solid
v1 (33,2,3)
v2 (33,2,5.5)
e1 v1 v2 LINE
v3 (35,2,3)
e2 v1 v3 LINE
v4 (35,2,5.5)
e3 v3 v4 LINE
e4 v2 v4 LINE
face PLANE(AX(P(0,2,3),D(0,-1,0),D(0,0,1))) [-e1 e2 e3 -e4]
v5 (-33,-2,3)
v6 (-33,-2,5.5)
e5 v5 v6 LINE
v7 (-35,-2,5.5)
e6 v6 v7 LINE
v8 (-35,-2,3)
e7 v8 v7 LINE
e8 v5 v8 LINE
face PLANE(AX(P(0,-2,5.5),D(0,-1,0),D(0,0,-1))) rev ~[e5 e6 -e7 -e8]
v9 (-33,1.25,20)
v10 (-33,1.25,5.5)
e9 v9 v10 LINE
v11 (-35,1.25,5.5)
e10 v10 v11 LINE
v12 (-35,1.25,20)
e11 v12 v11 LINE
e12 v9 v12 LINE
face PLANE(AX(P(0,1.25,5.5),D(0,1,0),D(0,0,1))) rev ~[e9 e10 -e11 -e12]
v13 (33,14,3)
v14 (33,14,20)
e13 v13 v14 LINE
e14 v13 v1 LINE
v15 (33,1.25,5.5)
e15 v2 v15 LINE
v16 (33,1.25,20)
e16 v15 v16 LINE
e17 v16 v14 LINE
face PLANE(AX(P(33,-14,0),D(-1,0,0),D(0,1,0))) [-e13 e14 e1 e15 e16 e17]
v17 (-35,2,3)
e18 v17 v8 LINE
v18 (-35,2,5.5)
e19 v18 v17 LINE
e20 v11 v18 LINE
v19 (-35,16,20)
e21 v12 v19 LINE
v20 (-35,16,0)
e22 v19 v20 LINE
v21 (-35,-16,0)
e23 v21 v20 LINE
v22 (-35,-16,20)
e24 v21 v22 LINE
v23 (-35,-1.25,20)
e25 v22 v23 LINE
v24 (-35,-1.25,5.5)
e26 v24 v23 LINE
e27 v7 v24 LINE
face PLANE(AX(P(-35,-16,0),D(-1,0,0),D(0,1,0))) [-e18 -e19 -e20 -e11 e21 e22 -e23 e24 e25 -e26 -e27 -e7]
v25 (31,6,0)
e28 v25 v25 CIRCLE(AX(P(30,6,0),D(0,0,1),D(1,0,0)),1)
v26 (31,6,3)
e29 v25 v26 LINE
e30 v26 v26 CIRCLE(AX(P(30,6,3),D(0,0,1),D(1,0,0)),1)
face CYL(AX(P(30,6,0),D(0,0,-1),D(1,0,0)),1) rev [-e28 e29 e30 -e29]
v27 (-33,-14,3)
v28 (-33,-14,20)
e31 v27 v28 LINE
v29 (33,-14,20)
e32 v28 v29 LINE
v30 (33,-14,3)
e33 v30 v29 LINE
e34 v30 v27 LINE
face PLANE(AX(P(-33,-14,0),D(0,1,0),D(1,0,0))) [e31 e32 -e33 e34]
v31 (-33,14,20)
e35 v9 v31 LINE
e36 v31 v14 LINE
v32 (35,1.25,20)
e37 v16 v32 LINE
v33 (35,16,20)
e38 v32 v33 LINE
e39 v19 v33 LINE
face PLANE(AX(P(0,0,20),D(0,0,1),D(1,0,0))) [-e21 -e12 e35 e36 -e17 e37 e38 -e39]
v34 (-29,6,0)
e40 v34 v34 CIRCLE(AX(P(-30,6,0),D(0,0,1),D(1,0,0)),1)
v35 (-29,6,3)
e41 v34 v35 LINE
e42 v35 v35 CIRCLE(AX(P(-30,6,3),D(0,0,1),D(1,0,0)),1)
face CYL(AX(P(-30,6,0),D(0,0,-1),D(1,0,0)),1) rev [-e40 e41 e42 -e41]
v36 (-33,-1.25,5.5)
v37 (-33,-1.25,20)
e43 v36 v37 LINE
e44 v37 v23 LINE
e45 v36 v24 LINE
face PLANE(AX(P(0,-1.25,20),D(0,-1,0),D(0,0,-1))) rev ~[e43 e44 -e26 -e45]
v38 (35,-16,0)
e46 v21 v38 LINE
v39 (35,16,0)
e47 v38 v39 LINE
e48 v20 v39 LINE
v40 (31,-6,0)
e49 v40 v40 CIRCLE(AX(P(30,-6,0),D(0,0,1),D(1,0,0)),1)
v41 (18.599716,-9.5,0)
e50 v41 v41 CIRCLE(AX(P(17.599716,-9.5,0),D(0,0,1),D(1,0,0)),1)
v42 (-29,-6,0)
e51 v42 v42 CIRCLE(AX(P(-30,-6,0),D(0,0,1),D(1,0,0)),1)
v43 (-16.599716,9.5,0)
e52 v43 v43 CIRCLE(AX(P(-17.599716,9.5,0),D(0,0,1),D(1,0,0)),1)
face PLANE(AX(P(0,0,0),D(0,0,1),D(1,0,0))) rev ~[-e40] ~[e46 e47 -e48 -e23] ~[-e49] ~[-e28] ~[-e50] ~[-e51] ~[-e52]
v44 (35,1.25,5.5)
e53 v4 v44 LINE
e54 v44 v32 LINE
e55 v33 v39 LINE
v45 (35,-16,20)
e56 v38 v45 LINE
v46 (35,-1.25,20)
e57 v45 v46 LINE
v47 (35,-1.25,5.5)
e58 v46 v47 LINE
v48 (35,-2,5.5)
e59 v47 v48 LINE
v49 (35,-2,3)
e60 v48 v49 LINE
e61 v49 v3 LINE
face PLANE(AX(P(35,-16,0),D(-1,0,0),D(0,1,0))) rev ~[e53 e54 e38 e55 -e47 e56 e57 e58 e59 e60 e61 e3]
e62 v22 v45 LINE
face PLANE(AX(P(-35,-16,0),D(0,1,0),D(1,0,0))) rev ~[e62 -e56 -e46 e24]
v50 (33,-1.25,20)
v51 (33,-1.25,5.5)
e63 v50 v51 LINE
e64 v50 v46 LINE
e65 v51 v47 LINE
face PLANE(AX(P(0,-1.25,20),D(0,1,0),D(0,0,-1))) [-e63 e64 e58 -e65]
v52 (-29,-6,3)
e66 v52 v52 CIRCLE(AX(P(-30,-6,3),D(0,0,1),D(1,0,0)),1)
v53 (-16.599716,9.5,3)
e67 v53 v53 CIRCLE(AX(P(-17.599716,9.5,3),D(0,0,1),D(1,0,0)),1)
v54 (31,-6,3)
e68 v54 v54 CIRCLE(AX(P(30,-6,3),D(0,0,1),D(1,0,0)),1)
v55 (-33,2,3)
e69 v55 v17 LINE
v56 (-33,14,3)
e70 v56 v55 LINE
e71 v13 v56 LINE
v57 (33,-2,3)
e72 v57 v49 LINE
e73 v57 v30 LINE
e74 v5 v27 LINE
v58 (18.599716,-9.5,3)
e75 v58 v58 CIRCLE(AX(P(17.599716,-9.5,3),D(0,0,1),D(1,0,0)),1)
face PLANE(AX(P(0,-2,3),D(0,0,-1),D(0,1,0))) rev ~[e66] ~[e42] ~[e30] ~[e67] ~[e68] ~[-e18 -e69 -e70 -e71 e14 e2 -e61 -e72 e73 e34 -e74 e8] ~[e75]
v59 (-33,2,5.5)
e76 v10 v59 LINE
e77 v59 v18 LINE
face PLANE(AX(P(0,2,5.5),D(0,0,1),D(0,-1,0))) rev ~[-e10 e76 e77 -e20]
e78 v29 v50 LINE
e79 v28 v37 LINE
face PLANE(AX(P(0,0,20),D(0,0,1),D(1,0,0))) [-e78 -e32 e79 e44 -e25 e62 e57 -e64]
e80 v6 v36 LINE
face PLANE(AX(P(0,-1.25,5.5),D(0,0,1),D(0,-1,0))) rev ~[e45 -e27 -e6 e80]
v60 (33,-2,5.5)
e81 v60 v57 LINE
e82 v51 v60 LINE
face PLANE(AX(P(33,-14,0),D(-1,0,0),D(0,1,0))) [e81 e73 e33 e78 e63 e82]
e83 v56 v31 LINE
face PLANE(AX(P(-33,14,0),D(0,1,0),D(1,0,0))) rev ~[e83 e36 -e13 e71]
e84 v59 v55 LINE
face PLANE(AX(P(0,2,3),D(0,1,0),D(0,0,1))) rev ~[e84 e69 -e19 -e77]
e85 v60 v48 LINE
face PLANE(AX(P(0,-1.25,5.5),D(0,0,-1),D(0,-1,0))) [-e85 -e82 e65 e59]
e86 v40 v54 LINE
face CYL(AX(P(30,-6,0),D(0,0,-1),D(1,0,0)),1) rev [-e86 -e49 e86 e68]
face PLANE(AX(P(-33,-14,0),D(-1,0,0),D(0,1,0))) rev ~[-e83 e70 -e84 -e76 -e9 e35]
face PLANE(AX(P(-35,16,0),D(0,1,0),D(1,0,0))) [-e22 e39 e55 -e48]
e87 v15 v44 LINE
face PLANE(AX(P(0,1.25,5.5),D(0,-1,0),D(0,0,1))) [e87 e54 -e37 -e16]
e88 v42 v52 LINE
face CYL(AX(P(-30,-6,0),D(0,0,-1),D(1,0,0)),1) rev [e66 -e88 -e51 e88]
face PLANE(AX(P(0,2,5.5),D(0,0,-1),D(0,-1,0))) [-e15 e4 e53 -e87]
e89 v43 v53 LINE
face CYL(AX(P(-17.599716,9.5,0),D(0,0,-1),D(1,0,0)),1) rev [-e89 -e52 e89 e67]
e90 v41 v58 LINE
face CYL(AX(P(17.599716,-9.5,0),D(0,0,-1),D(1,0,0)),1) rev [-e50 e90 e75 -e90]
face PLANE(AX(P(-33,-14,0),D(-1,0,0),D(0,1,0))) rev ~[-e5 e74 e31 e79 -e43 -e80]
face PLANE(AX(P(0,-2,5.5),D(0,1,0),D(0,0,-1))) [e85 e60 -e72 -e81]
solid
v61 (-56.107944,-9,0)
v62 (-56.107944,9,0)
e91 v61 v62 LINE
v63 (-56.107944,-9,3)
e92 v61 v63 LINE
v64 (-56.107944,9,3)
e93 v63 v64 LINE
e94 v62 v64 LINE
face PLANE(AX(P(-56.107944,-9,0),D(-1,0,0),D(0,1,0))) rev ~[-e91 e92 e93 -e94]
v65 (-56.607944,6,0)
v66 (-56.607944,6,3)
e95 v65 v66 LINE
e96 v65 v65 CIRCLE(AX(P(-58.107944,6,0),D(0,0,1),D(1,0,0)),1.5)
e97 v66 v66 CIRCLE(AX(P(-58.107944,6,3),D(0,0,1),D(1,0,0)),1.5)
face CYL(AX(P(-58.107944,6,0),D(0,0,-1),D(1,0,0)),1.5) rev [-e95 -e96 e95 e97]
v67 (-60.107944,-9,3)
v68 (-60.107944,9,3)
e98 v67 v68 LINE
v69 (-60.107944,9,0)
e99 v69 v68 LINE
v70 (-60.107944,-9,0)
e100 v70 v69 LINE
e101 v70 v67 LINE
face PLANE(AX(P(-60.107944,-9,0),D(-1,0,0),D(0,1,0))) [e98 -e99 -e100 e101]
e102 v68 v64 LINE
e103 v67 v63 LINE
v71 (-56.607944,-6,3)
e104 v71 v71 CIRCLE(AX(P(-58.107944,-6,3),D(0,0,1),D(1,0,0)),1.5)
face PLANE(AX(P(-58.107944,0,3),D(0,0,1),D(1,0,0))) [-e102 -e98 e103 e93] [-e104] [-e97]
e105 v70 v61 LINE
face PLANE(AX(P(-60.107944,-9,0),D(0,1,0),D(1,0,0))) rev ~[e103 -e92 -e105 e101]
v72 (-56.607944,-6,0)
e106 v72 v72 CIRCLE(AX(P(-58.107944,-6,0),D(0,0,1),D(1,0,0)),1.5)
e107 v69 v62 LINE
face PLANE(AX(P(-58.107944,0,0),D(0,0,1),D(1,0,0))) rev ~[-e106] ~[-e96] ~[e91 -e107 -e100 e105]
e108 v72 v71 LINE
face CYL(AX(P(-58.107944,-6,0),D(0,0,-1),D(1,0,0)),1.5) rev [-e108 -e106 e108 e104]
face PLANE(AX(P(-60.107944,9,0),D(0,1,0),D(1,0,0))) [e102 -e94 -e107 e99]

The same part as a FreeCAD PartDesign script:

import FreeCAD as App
import Part
import Sketcher
Q = App.Units.Quantity


def add_polygon(sketch, points):
    """Adds a closed chain of lines whose ends are joined by coincident constraints."""
    first, n = sketch.GeometryCount, len(points)
    for a, b in zip(points, points[1:] + points[:1]):
        sketch.addGeometry(Part.LineSegment(App.Vector(*a, 0), App.Vector(*b, 0)), False)
    for i in range(n):
        sketch.addConstraint(Sketcher.Constraint("Coincident", first + i, 2, first + (i + 1) % n, 1))

doc = App.newDocument("Part")
body = doc.addObject("PartDesign::Body", "Body")

# Sketch on XY plane
sketch1 = doc.addObject("Sketcher::SketchObject", "Sketch")
body.addObject(sketch1)
sketch1.AttachmentSupport = (doc.XY_Plane, [""])
sketch1.MapMode = "FlatFace"
add_polygon(sketch1, [(-35, 16), (-35, -16), (35, -16), (35, 16)])  # lines 0-3
sketch1.addGeometry(Part.Circle(App.Vector(-30, -6, 0), App.Vector(0, 0, 1), 1), False)  # 4
sketch1.addGeometry(Part.Circle(App.Vector(17.599716, -9.5, 0), App.Vector(0, 0, 1), 1), False)  # 5
sketch1.addGeometry(Part.Circle(App.Vector(30, -6, 0), App.Vector(0, 0, 1), 1), False)  # 6
sketch1.addGeometry(Part.Circle(App.Vector(-30, 6, 0), App.Vector(0, 0, 1), 1), False)  # 7
sketch1.addGeometry(Part.Circle(App.Vector(-17.599716, 9.5, 0), App.Vector(0, 0, 1), 1), False)  # 8
sketch1.addGeometry(Part.Circle(App.Vector(30, 6, 0), App.Vector(0, 0, 1), 1), False)  # 9
sketch1.addConstraint([
    Sketcher.Constraint("Vertical", 0),
    Sketcher.Constraint("Horizontal", 1),
    Sketcher.Constraint("Vertical", 2),
    Sketcher.Constraint("Horizontal", 3),
    Sketcher.Constraint("Equal", 4, 5),
    Sketcher.Constraint("Equal", 5, 6),
    Sketcher.Constraint("Equal", 6, 7),
    Sketcher.Constraint("Equal", 7, 8),
    Sketcher.Constraint("Equal", 8, 9),
    Sketcher.Constraint("Symmetric", 6, 3, 7, 3, -1, 1),
    Sketcher.Constraint("Symmetric", 5, 3, 8, 3, -1, 1),
    Sketcher.Constraint("Symmetric", 4, 3, 9, 3, -1, 1),
    Sketcher.Constraint("Symmetric", 0, 2, 2, 2, -1, 1),
    Sketcher.Constraint("Symmetric", 4, 3, 6, 3, -2),
    Sketcher.Constraint("Diameter", 4, Q("2 mm")),
    Sketcher.Constraint("DistanceX", 1, 1, 1, 2, Q("70 mm")),
    Sketcher.Constraint("DistanceY", 0, 2, 0, 1, Q("32 mm")),
    Sketcher.Constraint("DistanceX", 4, 3, -1, 1, Q("30 mm")),
    Sketcher.Constraint("DistanceY", 4, 3, -1, 1, Q("6 mm")),
    Sketcher.Constraint("DistanceY", 5, 3, 8, 3, Q("19 mm")),
    Sketcher.Constraint("DistanceX", -1, 1, 5, 3, Q("17.599716 mm")),
])
pad1 = doc.addObject("PartDesign::Pad", "Pad")
body.addObject(pad1)
pad1.Profile = sketch1
pad1.Length = 3

# Sketch on XY plane
sketch2 = doc.addObject("Sketcher::SketchObject", "Sketch001")
body.addObject(sketch2)
sketch2.AttachmentSupport = (doc.XY_Plane, [""])
sketch2.MapMode = "FlatFace"
add_polygon(sketch2, [(-35, 16), (-35, -16), (35, -16), (35, 16)])  # lines 0-3
add_polygon(sketch2, [(33, -14), (-33, -14), (-33, 14), (33, 14)])  # lines 4-7
sketch2.addConstraint([
    Sketcher.Constraint("Vertical", 0),
    Sketcher.Constraint("Horizontal", 1),
    Sketcher.Constraint("Vertical", 2),
    Sketcher.Constraint("Horizontal", 3),
    Sketcher.Constraint("Horizontal", 4),
    Sketcher.Constraint("Vertical", 5),
    Sketcher.Constraint("Horizontal", 6),
    Sketcher.Constraint("Vertical", 7),
    Sketcher.Constraint("Symmetric", 0, 2, 2, 2, -1, 1),
    Sketcher.Constraint("Symmetric", 4, 2, 6, 2, -1, 1),
    Sketcher.Constraint("DistanceX", 1, 1, 1, 2, Q("70 mm")),
    Sketcher.Constraint("DistanceX", 4, 2, 4, 1, Q("66 mm")),
    Sketcher.Constraint("DistanceY", 0, 2, 0, 1, Q("32 mm")),
    Sketcher.Constraint("DistanceY", 5, 1, 5, 2, Q("28 mm")),
])
pad2 = doc.addObject("PartDesign::Pad", "Pad001")
body.addObject(pad2)
pad2.Profile = sketch2
pad2.Length = 20

# Sketch on YZ plane
sketch3 = doc.addObject("Sketcher::SketchObject", "Sketch002")
body.addObject(sketch3)
sketch3.AttachmentSupport = (doc.YZ_Plane, [""])
sketch3.MapMode = "FlatFace"
add_polygon(sketch3, [(-2, 5.5), (-2, 3), (2, 3), (2, 5.5), (1.25, 5.5), (1.25, 20), (-1.25, 20), (-1.25, 5.5)])  # lines 0-7
sketch3.addConstraint([
    Sketcher.Constraint("Vertical", 0),
    Sketcher.Constraint("Horizontal", 1),
    Sketcher.Constraint("Vertical", 2),
    Sketcher.Constraint("Horizontal", 3),
    Sketcher.Constraint("Vertical", 4),
    Sketcher.Constraint("Horizontal", 5),
    Sketcher.Constraint("Vertical", 6),
    Sketcher.Constraint("Horizontal", 7),
    Sketcher.Constraint("Symmetric", 3, 2, 6, 2, -2),
    Sketcher.Constraint("Equal", 3, 7),
    Sketcher.Constraint("Equal", 5, 0),
    Sketcher.Constraint("DistanceX", 1, 1, 1, 2, Q("4 mm")),
    Sketcher.Constraint("DistanceX", 5, 2, 5, 1, Q("2.5 mm")),
    Sketcher.Constraint("DistanceY", 4, 1, 4, 2, Q("14.5 mm")),
    Sketcher.Constraint("DistanceY", -1, 1, 0, 2, Q("3 mm")),
])
pocket1 = doc.addObject("PartDesign::Pocket", "Pocket")
body.addObject(pocket1)
pocket1.Profile = sketch3
pocket1.Type = "ThroughAll"
pocket1.Midplane = True
body2 = doc.addObject("PartDesign::Body", "Body001")

# Sketch on XY plane
sketch4 = doc.addObject("Sketcher::SketchObject", "Sketch003")
body2.addObject(sketch4)
sketch4.AttachmentSupport = (doc.getObject("XY_Plane001"), [""])
sketch4.MapMode = "FlatFace"
add_polygon(sketch4, [(-60.107944, 9), (-60.107944, -9), (-56.107944, -9), (-56.107944, 9)])  # lines 0-3
sketch4.addGeometry(Part.Circle(App.Vector(-58.107944, -6, 0), App.Vector(0, 0, 1), 1.5), False)  # 4
sketch4.addGeometry(Part.Circle(App.Vector(-58.107944, 6, 0), App.Vector(0, 0, 1), 1.5), False)  # 5
sketch4.addConstraint([
    Sketcher.Constraint("Vertical", 0),
    Sketcher.Constraint("Horizontal", 1),
    Sketcher.Constraint("Vertical", 2),
    Sketcher.Constraint("Horizontal", 3),
    Sketcher.Constraint("Equal", 4, 5),
    Sketcher.Constraint("Symmetric", 4, 3, 5, 3, -1),
    Sketcher.Constraint("Diameter", 4, Q("3 mm")),
    Sketcher.Constraint("DistanceX", 1, 1, 1, 2, Q("4 mm")),
    Sketcher.Constraint("DistanceY", 0, 2, 0, 1, Q("18 mm")),
    Sketcher.Constraint("DistanceY", 4, 3, -1, 1, Q("6 mm")),
    Sketcher.Constraint("DistanceY", 0, 2, -1, 1, Q("9 mm")),
    Sketcher.Constraint("DistanceX", 0, 2, 4, 3, Q("2 mm")),
    Sketcher.Constraint("DistanceX", 4, 3, -1, 1, Q("58.107944 mm")),
])
pad3 = doc.addObject("PartDesign::Pad", "Pad002")
body2.addObject(pad3)
pad3.Profile = sketch4
pad3.Length = 3

doc.recompute()
